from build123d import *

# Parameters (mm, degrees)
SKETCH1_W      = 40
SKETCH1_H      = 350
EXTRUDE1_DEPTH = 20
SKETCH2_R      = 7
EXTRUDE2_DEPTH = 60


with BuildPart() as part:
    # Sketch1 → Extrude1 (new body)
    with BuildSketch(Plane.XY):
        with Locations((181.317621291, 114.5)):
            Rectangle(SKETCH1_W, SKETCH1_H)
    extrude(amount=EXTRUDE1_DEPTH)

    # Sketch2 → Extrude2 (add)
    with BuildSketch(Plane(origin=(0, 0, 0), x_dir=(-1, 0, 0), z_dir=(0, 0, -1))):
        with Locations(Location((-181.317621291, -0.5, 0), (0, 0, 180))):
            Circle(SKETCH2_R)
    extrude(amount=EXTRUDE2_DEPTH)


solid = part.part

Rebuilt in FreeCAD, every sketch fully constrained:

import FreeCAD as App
import Part
import Sketcher
Q = App.Units.Quantity

doc = App.newDocument("Part")
body = doc.addObject("PartDesign::Body", "Body")

sketch1 = body.newObject("Sketcher::SketchObject", "Sketch")
sketch1.AttachmentSupport = (doc.getObject("XY_Plane"), [""])
sketch1.MapMode = "FlatFace"
sketch1.addGeometry([
    Part.LineSegment(App.Vector(161, 290, 0), App.Vector(161, -60, 0)),
    Part.LineSegment(App.Vector(161, -60, 0), App.Vector(201, -60, 0)),
    Part.LineSegment(App.Vector(201, -60, 0), App.Vector(201, 290, 0)),
    Part.LineSegment(App.Vector(201, 290, 0), App.Vector(161, 290, 0)),
], False)
sketch1.addConstraint([
    Sketcher.Constraint("Coincident", 0, 2, 1, 1),
    Sketcher.Constraint("Coincident", 1, 2, 2, 1),
    Sketcher.Constraint("Coincident", 2, 2, 3, 1),
    Sketcher.Constraint("Coincident", 3, 2, 0, 1),
    Sketcher.Constraint("Vertical", 0),
    Sketcher.Constraint("Horizontal", 1),
    Sketcher.Constraint("Vertical", 2),
    Sketcher.Constraint("Horizontal", 3),
    Sketcher.Constraint("DistanceX", 1, 1, 1, 2, Q("40 mm")),
    Sketcher.Constraint("DistanceY", 0, 2, 0, 1, Q("350 mm")),
    Sketcher.Constraint("DistanceY", 0, 2, -1, 1, Q("60.5 mm")),
    Sketcher.Constraint("DistanceX", -1, 1, 0, 2, Q("161.317621 mm")),
])
pad1 = body.newObject("PartDesign::Pad", "Pad")
pad1.Profile = sketch1
pad1.Length = 20

sketch2 = body.newObject("Sketcher::SketchObject", "Sketch001")
sketch2.AttachmentSupport = (doc.getObject("XY_Plane"), [""])
sketch2.MapMode = "FlatFace"
sketch2.addGeometry(Part.Circle(App.Vector(181, 0, 0), App.Vector(0, 0, 1), 7), False)
sketch2.addConstraint([
    Sketcher.Constraint("Diameter", 0, Q("14 mm")),
    Sketcher.Constraint("DistanceY", 0, 3, -1, 1, Q("0.5 mm")),
    Sketcher.Constraint("DistanceX", -1, 1, 0, 3, Q("181.317621 mm")),
])
pad2 = body.newObject("PartDesign::Pad", "Pad001")
pad2.Profile = sketch2
pad2.Length = 60
pad2.Reversed = True

doc.recompute()
